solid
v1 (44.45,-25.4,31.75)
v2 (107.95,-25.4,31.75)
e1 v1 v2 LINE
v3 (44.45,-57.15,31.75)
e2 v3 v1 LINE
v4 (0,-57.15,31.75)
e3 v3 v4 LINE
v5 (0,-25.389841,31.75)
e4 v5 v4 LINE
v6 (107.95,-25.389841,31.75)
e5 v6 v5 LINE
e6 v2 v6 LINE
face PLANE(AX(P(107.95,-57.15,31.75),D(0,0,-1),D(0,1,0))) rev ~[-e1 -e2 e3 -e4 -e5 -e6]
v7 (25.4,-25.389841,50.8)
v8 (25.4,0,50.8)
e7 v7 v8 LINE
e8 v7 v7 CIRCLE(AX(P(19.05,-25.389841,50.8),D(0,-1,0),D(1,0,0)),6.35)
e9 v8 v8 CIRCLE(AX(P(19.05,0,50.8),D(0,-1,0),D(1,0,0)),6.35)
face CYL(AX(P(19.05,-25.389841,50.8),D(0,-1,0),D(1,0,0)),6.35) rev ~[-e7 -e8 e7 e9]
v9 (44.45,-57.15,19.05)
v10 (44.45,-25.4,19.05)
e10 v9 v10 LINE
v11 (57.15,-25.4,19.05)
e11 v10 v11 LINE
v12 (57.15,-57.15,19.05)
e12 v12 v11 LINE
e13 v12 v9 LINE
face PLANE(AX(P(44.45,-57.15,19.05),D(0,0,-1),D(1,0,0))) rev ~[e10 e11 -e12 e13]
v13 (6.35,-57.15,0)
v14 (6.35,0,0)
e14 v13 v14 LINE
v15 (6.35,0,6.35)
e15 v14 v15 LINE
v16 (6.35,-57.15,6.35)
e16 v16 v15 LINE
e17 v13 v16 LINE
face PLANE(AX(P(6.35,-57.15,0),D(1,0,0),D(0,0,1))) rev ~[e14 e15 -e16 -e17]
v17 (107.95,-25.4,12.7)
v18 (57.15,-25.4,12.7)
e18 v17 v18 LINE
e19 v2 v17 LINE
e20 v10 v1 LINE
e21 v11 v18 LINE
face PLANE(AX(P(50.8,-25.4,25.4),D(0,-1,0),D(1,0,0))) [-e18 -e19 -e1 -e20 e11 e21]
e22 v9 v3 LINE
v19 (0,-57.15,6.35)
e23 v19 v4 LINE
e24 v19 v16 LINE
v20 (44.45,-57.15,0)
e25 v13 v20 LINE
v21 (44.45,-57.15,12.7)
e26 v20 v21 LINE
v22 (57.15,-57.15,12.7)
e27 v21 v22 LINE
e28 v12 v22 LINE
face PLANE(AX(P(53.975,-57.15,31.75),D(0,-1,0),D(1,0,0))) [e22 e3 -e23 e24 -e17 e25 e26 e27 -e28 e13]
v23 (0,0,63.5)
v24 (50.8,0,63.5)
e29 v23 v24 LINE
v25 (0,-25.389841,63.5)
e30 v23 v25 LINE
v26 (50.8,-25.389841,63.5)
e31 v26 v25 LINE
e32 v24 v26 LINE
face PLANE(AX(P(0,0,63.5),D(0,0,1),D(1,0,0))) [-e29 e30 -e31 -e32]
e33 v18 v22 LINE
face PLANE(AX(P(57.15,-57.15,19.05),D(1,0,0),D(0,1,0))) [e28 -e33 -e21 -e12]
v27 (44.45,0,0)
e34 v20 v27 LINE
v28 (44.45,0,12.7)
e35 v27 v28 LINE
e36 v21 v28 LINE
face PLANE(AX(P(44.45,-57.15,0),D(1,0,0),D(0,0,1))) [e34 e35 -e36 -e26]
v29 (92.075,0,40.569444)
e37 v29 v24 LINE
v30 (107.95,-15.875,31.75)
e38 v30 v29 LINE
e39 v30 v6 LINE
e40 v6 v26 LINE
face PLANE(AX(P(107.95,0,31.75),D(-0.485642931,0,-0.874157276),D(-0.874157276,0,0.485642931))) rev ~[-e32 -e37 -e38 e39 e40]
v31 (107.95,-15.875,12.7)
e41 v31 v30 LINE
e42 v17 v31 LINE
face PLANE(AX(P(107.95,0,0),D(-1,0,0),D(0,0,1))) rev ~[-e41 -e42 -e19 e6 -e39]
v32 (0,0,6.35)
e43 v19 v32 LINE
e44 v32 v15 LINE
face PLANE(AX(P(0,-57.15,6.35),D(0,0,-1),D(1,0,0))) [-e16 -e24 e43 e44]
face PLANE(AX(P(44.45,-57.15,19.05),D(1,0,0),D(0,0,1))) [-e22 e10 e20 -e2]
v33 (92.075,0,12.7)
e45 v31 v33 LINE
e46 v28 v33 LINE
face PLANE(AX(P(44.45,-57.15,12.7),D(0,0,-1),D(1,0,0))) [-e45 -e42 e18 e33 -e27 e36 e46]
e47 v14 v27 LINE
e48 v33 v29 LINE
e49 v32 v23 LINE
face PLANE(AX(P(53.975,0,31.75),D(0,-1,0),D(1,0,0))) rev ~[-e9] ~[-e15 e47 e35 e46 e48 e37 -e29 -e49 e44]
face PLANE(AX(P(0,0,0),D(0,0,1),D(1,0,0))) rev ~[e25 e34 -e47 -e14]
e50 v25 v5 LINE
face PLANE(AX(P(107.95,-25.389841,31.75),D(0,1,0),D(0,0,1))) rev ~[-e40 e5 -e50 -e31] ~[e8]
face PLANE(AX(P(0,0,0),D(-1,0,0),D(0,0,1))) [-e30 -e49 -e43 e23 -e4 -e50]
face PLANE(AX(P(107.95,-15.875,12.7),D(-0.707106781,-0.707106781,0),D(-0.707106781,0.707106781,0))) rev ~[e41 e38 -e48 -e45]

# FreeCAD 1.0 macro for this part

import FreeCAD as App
import Part
import Sketcher

V = App.Vector
Q = App.Units.Quantity


def add_polygon(sketch, points):
    """Adds a closed chain of lines whose ends are joined by coincident constraints."""
    first, n = sketch.GeometryCount, len(points)
    for a, b in zip(points, points[1:] + points[:1]):
        sketch.addGeometry(Part.LineSegment(App.Vector(*a, 0), App.Vector(*b, 0)), False)
    for i in range(n):
        sketch.addConstraint(Sketcher.Constraint("Coincident", first + i, 2, first + (i + 1) % n, 1))

doc = App.newDocument("Part")
params = doc.addObject("Spreadsheet::Sheet", "Params")
for row, (alias, value) in enumerate([
    ("sketch1_height", "2.5 in"),
    ("sketch1_width", "4.25 in"),
    ("pad1_length", "2.25 in"),
    ("sketch2_width", "0.25 in"),
    ("sketch3_width", "2.5 in"),
    ("sketch3_height", "0.5 in"),
    ("sketch4_height", "1.25 in"),
    ("sketch5_width", "0.5 in"),
    ("pocket4_length", "1.25 in"),
    ("sketch6_width", "2 in"),
    ("sketch6_height", "0.5 in"),
    ("pocket5_length", "1.25 in"),
    ("sketch7_width", "2.25 in"),
    ("sketch7_height", "1.25 in"),
    ("sketch8_width", "0.625 in"),
    ("sketch9_diameter", "0.5 in"),
    ("sketch10_width", "2 in"),
    ("sketch10_height", "1.25 in"),
], start=1):
    params.set(f"A{row}", alias)
    params.set(f"B{row}", "=" + value)
    params.setAlias(f"B{row}", alias)

body = doc.addObject("PartDesign::Body", "Body")

# Sketch on XZ plane
sketch1 = body.newObject("Sketcher::SketchObject", "Sketch")
sketch1.AttachmentSupport = (doc.getObject("XZ_Plane"), [""])
sketch1.MapMode = "FlatFace"
add_polygon(sketch1, [(0, 64), (0, 0), (108, 0), (108, 64)])  # lines 0-3
sketch1.addConstraint(Sketcher.Constraint("Vertical", 0))
sketch1.addConstraint(Sketcher.Constraint("Horizontal", 1))
sketch1.addConstraint(Sketcher.Constraint("Vertical", 2))
sketch1.addConstraint(Sketcher.Constraint("Horizontal", 3))
sketch1.addConstraint(Sketcher.Constraint("Coincident", 0, 2, -1, 1))
sketch1.addConstraint(Sketcher.Constraint("DistanceY", 0, 2, 0, 1, Q("2.5 in")))
sketch1.addConstraint(Sketcher.Constraint("DistanceX", 1, 1, 1, 2, Q("4.25 in")))
sketch1.setExpression("Constraints[9]", "Params.sketch1_height")
sketch1.setExpression("Constraints[10]", "Params.sketch1_width")
pad1 = body.newObject("PartDesign::Pad", "Pad")
pad1.Profile = sketch1
pad1.setExpression("Length", "Params.pad1_length")

# Sketch on XZ plane
sketch2 = body.newObject("Sketcher::SketchObject", "Sketch001")
sketch2.AttachmentSupport = (doc.getObject("XZ_Plane"), [""])
sketch2.MapMode = "FlatFace"
sketch2.AttachmentOffset = App.Placement(V(0, 0, 2.25 * 25.4), App.Rotation())
add_polygon(sketch2, [(0, 6), (0, 0), (6, 0), (6, 6)])  # lines 0-3
sketch2.addConstraint(Sketcher.Constraint("Vertical", 0))
sketch2.addConstraint(Sketcher.Constraint("Horizontal", 1))
sketch2.addConstraint(Sketcher.Constraint("Vertical", 2))
sketch2.addConstraint(Sketcher.Constraint("Horizontal", 3))
sketch2.addConstraint(Sketcher.Constraint("Coincident", 0, 2, -1, 1))
sketch2.addConstraint(Sketcher.Constraint("Equal", 3, 0))
sketch2.addConstraint(Sketcher.Constraint("DistanceX", 1, 1, 1, 2, Q("0.25 in")))
sketch2.setExpression("Constraints[10]", "Params.sketch2_width")
pocket1 = body.newObject("PartDesign::Pocket", "Pocket")
pocket1.Profile = sketch2
pocket1.Type = "ThroughAll"

# Sketch on XZ plane
sketch3 = body.newObject("Sketcher::SketchObject", "Sketch002")
sketch3.AttachmentSupport = (doc.getObject("XZ_Plane"), [""])
sketch3.MapMode = "FlatFace"
sketch3.AttachmentOffset = App.Placement(V(0, 0, 2.25 * 25.4), App.Rotation())
add_polygon(sketch3, [(44, 13), (44, 0), (108, 0), (108, 13)])  # lines 0-3
sketch3.addConstraint(Sketcher.Constraint("Vertical", 0))
sketch3.addConstraint(Sketcher.Constraint("Horizontal", 1))
sketch3.addConstraint(Sketcher.Constraint("Vertical", 2))
sketch3.addConstraint(Sketcher.Constraint("Horizontal", 3))
sketch3.addConstraint(Sketcher.Constraint("PointOnObject", 0, 2, -1))
sketch3.addConstraint(Sketcher.Constraint("DistanceX", 1, 1, 1, 2, Q("2.5 in")))
sketch3.addConstraint(Sketcher.Constraint("DistanceY", 0, 2, 0, 1, Q("0.5 in")))
sketch3.addConstraint(Sketcher.Constraint("DistanceX", -1, 1, 0, 2, Q("1.75 in")))
sketch3.setExpression("Constraints[9]", "Params.sketch3_width")
sketch3.setExpression("Constraints[10]", "Params.sketch3_height")
pocket2 = body.newObject("PartDesign::Pocket", "Pocket001")
pocket2.Profile = sketch3
pocket2.Type = "ThroughAll"

# Sketch on YZ plane
sketch4 = body.newObject("Sketcher::SketchObject", "Sketch003")
sketch4.AttachmentSupport = (doc.getObject("YZ_Plane"), [""])
sketch4.MapMode = "FlatFace"
sketch4.AttachmentOffset = App.Placement(V(0, 0, 4.25 * 25.4), App.Rotation())
add_polygon(sketch4, [(-57, 64), (-57, 32), (-25, 32), (-25, 64)])  # lines 0-3
sketch4.addConstraint(Sketcher.Constraint("Vertical", 0))
sketch4.addConstraint(Sketcher.Constraint("Horizontal", 1))
sketch4.addConstraint(Sketcher.Constraint("Vertical", 2))
sketch4.addConstraint(Sketcher.Constraint("Horizontal", 3))
sketch4.addConstraint(Sketcher.Constraint("DistanceY", 0, 2, 0, 1, Q("1.25 in")))
sketch4.addConstraint(Sketcher.Constraint("DistanceY", -1, 1, 2, 2, Q("2.5 in")))
sketch4.addConstraint(Sketcher.Constraint("DistanceX", 0, 2, -1, 1, Q("2.25 in")))
sketch4.addConstraint(Sketcher.Constraint("DistanceX", 1, 1, 1, 2, Q("1.2504 in")))
sketch4.setExpression("Constraints[8]", "Params.sketch4_height")
pocket3 = body.newObject("PartDesign::Pocket", "Pocket002")
pocket3.Profile = sketch4
pocket3.Type = "ThroughAll"

# Sketch on XZ plane
sketch5 = body.newObject("Sketcher::SketchObject", "Sketch004")
sketch5.AttachmentSupport = (doc.getObject("XZ_Plane"), [""])
sketch5.MapMode = "FlatFace"
sketch5.AttachmentOffset = App.Placement(V(0, 0, 2.25 * 25.4), App.Rotation())
add_polygon(sketch5, [(44, 32), (44, 19), (57, 19), (57, 32)])  # lines 0-3
sketch5.addConstraint(Sketcher.Constraint("Vertical", 0))
sketch5.addConstraint(Sketcher.Constraint("Horizontal", 1))
sketch5.addConstraint(Sketcher.Constraint("Vertical", 2))
sketch5.addConstraint(Sketcher.Constraint("Horizontal", 3))
sketch5.addConstraint(Sketcher.Constraint("Equal", 3, 0))
sketch5.addConstraint(Sketcher.Constraint("DistanceX", 1, 1, 1, 2, Q("0.5 in")))
sketch5.addConstraint(Sketcher.Constraint("DistanceX", -1, 1, 0, 2, Q("1.75 in")))
sketch5.addConstraint(Sketcher.Constraint("DistanceY", -1, 1, 0, 2, Q("0.75 in")))
sketch5.setExpression("Constraints[9]", "Params.sketch5_width")
pocket4 = body.newObject("PartDesign::Pocket", "Pocket003")
pocket4.Profile = sketch5
pocket4.setExpression("Length", "Params.pocket4_length")

# Sketch on XZ plane
sketch6 = body.newObject("Sketcher::SketchObject", "Sketch005")
sketch6.AttachmentSupport = (doc.getObject("XZ_Plane"), [""])
sketch6.MapMode = "FlatFace"
sketch6.AttachmentOffset = App.Placement(V(0, 0, 2.25 * 25.4), App.Rotation())
add_polygon(sketch6, [(57, 32), (57, 19), (108, 19), (108, 32)])  # lines 0-3
sketch6.addConstraint(Sketcher.Constraint("Vertical", 0))
sketch6.addConstraint(Sketcher.Constraint("Horizontal", 1))
sketch6.addConstraint(Sketcher.Constraint("Vertical", 2))
sketch6.addConstraint(Sketcher.Constraint("Horizontal", 3))
sketch6.addConstraint(Sketcher.Constraint("DistanceX", 1, 1, 1, 2, Q("2 in")))
sketch6.addConstraint(Sketcher.Constraint("DistanceY", 0, 2, 0, 1, Q("0.5 in")))
sketch6.addConstraint(Sketcher.Constraint("DistanceX", -1, 1, 0, 2, Q("2.25 in")))
sketch6.addConstraint(Sketcher.Constraint("DistanceY", -1, 1, 0, 2, Q("0.75 in")))
sketch6.setExpression("Constraints[8]", "Params.sketch6_width")
sketch6.setExpression("Constraints[9]", "Params.sketch6_height")
pocket5 = body.newObject("PartDesign::Pocket", "Pocket004")
pocket5.Profile = sketch6
pocket5.setExpression("Length", "Params.pocket5_length")

# Sketch on XZ plane
sketch7 = body.newObject("Sketcher::SketchObject", "Sketch006")
sketch7.AttachmentSupport = (doc.getObject("XZ_Plane"), [""])
sketch7.MapMode = "FlatFace"
add_polygon(sketch7, [(108, 64), (108, 32), (51, 64)])  # lines 0-2
sketch7.addConstraint(Sketcher.Constraint("Vertical", 0))
sketch7.addConstraint(Sketcher.Constraint("Horizontal", 2))
sketch7.addConstraint(Sketcher.Constraint("DistanceX", -1, 1, 1, 2, Q("2 in")))
sketch7.addConstraint(Sketcher.Constraint("DistanceX", 2, 1, 2, 2, Q("2.25 in")))
sketch7.addConstraint(Sketcher.Constraint("DistanceY", 0, 2, 0, 1, Q("1.25 in")))
sketch7.addConstraint(Sketcher.Constraint("DistanceY", -1, 1, 1, 2, Q("2.5 in")))
sketch7.setExpression("Constraints[6]", "Params.sketch7_width")
sketch7.setExpression("Constraints[7]", "Params.sketch7_height")
pocket6 = body.newObject("PartDesign::Pocket", "Pocket005")
pocket6.Profile = sketch7
pocket6.Type = "ThroughAll"
pocket6.Reversed = True

# Sketch on XY plane
sketch8 = body.newObject("Sketcher::SketchObject", "Sketch007")
sketch8.AttachmentSupport = (doc.getObject("XY_Plane"), [""])
sketch8.MapMode = "FlatFace"
sketch8.AttachmentOffset = App.Placement(V(0, 0, 0.5 * 25.4), App.Rotation())
add_polygon(sketch8, [(92, 0), (108, 0), (108, -16)])  # lines 0-2
sketch8.addConstraint(Sketcher.Constraint("Horizontal", 0))
sketch8.addConstraint(Sketcher.Constraint("Vertical", 1))
sketch8.addConstraint(Sketcher.Constraint("PointOnObject", 0, 2, -1))
sketch8.addConstraint(Sketcher.Constraint("Equal", 0, 1))
sketch8.addConstraint(Sketcher.Constraint("DistanceX", 0, 1, 0, 2, Q("0.625 in")))
sketch8.addConstraint(Sketcher.Constraint("DistanceX", -1, 1, 0, 2, Q("4.25 in")))
sketch8.setExpression("Constraints[7]", "Params.sketch8_width")
pocket7 = body.newObject("PartDesign::Pocket", "Pocket006")
pocket7.Profile = sketch8
pocket7.Type = "ThroughAll"
pocket7.Reversed = True

# Sketch on XZ plane
sketch9 = body.newObject("Sketcher::SketchObject", "Sketch008")
sketch9.AttachmentSupport = (doc.getObject("XZ_Plane"), [""])
sketch9.MapMode = "FlatFace"
sketch9.AttachmentOffset = App.Placement(V(0, 0, 0.9996 * 25.4), App.Rotation())
sketch9.addGeometry(Part.Circle(V(19, 51, 0), V(0, 0, 1), 6), False)
sketch9.addConstraint(Sketcher.Constraint("Diameter", 0, Q("0.5 in")))
sketch9.addConstraint(Sketcher.Constraint("DistanceY", -1, 1, 0, 3, Q("2 in")))
sketch9.addConstraint(Sketcher.Constraint("DistanceX", -1, 1, 0, 3, Q("0.75 in")))
sketch9.setExpression("Constraints[0]", "Params.sketch9_diameter")
pocket8 = body.newObject("PartDesign::Pocket", "Pocket007")
pocket8.Profile = sketch9
pocket8.Type = "ThroughAll"

# Sketch on XY plane
sketch10 = body.newObject("Sketcher::SketchObject", "Sketch009")
sketch10.AttachmentSupport = (doc.getObject("XY_Plane"), [""])
sketch10.MapMode = "FlatFace"
sketch10.AttachmentOffset = App.Placement(V(0, 0, 0.75 * 25.4), App.Rotation())
add_polygon(sketch10, [(57, -25), (57, -57), (108, -57), (108, -25)])  # lines 0-3
sketch10.addConstraint(Sketcher.Constraint("Vertical", 0))
sketch10.addConstraint(Sketcher.Constraint("Horizontal", 1))
sketch10.addConstraint(Sketcher.Constraint("Vertical", 2))
sketch10.addConstraint(Sketcher.Constraint("Horizontal", 3))
sketch10.addConstraint(Sketcher.Constraint("DistanceX", 1, 1, 1, 2, Q("2 in")))
sketch10.addConstraint(Sketcher.Constraint("DistanceY", 2, 2, -1, 1, Q("1 in")))
sketch10.addConstraint(Sketcher.Constraint("DistanceY", 0, 2, 0, 1, Q("1.25 in")))
sketch10.addConstraint(Sketcher.Constraint("DistanceX", -1, 1, 0, 2, Q("2.25 in")))
sketch10.setExpression("Constraints[8]", "Params.sketch10_width")
sketch10.setExpression("Constraints[10]", "Params.sketch10_height")
pocket9 = body.newObject("PartDesign::Pocket", "Pocket008")
pocket9.Profile = sketch10
pocket9.Type = "ThroughAll"

doc.recompute()
